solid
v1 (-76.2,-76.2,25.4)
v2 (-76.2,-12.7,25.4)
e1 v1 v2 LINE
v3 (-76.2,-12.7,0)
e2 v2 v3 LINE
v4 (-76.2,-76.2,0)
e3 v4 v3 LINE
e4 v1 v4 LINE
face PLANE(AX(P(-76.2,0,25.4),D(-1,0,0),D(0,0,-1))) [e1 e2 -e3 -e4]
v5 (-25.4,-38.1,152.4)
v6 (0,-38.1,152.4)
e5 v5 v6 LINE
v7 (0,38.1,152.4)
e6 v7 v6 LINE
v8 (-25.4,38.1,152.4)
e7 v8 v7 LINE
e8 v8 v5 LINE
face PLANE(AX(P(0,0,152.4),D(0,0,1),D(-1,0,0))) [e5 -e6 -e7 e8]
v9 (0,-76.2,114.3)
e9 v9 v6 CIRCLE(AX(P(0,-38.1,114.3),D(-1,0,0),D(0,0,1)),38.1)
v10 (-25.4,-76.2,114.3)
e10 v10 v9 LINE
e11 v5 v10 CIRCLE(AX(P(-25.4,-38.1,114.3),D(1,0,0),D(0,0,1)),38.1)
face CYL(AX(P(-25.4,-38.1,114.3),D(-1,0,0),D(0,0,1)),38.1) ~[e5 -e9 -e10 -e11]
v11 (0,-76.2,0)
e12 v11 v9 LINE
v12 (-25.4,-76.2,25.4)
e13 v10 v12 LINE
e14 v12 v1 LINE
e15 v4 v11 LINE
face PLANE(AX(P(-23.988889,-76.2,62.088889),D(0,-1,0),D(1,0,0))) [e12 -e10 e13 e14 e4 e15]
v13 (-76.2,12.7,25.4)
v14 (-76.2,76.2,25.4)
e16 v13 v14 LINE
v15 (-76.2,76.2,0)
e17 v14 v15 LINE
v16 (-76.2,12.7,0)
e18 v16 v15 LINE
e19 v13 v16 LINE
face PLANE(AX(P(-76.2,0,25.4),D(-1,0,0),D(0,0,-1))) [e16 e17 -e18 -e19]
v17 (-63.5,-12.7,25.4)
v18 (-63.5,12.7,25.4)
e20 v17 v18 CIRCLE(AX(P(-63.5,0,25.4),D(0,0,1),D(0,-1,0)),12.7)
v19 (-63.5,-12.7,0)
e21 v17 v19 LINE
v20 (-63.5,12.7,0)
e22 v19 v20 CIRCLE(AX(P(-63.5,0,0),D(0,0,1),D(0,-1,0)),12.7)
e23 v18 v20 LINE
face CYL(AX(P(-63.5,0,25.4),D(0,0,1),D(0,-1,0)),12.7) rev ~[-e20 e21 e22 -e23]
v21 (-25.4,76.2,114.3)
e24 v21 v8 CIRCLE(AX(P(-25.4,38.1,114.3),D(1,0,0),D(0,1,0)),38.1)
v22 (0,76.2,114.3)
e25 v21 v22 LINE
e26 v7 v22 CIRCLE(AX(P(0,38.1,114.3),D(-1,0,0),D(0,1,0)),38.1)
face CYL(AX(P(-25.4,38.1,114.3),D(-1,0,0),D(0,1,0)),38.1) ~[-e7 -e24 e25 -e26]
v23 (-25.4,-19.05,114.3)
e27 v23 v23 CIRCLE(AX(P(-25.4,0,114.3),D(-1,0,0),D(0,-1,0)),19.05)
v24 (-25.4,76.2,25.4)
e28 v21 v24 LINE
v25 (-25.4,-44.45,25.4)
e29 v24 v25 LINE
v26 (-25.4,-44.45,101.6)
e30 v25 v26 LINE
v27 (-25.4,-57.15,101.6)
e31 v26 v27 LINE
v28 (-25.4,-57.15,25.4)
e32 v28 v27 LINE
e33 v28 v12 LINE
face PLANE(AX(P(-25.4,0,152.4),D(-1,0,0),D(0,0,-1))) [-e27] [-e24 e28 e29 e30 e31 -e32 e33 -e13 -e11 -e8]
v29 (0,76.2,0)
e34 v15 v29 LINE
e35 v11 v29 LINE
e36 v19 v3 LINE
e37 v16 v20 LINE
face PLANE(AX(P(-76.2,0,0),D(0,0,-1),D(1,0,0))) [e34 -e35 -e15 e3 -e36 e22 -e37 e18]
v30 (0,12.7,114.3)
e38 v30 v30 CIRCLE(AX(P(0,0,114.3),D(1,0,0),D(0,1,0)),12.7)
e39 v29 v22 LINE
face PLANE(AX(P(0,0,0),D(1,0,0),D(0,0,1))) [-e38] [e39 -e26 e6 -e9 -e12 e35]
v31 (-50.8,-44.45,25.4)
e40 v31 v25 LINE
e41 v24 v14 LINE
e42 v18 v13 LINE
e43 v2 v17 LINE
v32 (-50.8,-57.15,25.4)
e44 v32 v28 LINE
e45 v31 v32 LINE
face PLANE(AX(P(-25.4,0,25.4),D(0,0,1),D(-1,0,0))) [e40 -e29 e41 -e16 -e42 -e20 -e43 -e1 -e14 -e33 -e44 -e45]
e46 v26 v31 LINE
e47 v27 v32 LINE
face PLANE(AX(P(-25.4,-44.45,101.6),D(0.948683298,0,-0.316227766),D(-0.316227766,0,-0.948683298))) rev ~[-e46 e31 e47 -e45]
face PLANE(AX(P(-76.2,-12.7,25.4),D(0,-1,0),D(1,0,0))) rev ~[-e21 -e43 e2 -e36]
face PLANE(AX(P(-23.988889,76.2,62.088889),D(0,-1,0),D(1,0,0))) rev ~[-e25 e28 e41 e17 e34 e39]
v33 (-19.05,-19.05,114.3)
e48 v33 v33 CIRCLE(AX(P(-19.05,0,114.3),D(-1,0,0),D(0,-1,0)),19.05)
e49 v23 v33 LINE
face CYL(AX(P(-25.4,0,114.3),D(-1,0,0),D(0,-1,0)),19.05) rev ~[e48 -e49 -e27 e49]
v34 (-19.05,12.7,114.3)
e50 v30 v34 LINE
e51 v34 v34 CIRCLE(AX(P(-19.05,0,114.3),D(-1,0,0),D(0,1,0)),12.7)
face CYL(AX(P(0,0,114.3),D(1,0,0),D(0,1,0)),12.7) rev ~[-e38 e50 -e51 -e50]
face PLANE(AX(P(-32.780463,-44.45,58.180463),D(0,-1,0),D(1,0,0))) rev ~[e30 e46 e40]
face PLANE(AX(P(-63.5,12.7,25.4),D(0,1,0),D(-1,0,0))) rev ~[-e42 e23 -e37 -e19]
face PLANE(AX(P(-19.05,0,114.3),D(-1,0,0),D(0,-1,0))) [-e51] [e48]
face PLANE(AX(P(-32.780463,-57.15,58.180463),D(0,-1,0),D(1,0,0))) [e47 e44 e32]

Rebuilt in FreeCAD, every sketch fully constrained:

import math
import FreeCAD as App
import Part
import Sketcher
Q = App.Units.Quantity

doc = App.newDocument("Part")
params = doc.addObject("Spreadsheet::Sheet", "Params")
for row, (alias, value) in enumerate([
    ("sketch1_width", "1 in"),
    ("sketch1_width2", "2 in"),
    ("sketch1_height", "6 in"),
    ("pad1_length", "6 in"),
    ("sketch2_diameter", "1 in"),
    ("sketch3_radius", "0.5 in"),
    ("sketch3_width", "0.5 in"),
    ("sketch4_radius", "1.5 in"),
    ("sketch5_diameter", "1 in"),
    ("sketch5_diameter2", "1.5 in"),
    ("pocket4_length", "0.25 in"),
    ("sketch6_width", "1 in"),
    ("sketch6_height", "3 in"),
    ("pad2_length", "0.5 in"),
], start=1):
    params.set(f"A{row}", alias)
    params.set(f"B{row}", "=" + value)
    params.setAlias(f"B{row}", alias)

body = doc.addObject("PartDesign::Body", "Body")

# Sketch on XZ plane
sketch1 = body.newObject("Sketcher::SketchObject", "Sketch")
sketch1.AttachmentSupport = (doc.getObject("XZ_Plane"), [""])
sketch1.MapMode = "FlatFace"
sketch1.addGeometry([
    Part.LineSegment(App.Vector(0, 0, 0), App.Vector(0, 152.4, 0)),  # 0
    Part.LineSegment(App.Vector(0, 152.4, 0), App.Vector(-25.4, 152.4, 0)),  # 1
    Part.LineSegment(App.Vector(-25.4, 152.4, 0), App.Vector(-25.4, 25.4, 0)),  # 2
    Part.LineSegment(App.Vector(-25.4, 25.4, 0), App.Vector(-76.2, 25.4, 0)),  # 3
    Part.LineSegment(App.Vector(-76.2, 25.4, 0), App.Vector(-76.2, 0, 0)),  # 4
    Part.LineSegment(App.Vector(-76.2, 0, 0), App.Vector(0, 0, 0)),  # 5
], False)
sketch1.addConstraint([
    Sketcher.Constraint("Coincident", 0, 2, 1, 1),
    Sketcher.Constraint("Coincident", 1, 2, 2, 1),
    Sketcher.Constraint("Coincident", 2, 2, 3, 1),
    Sketcher.Constraint("Coincident", 3, 2, 4, 1),
    Sketcher.Constraint("Coincident", 4, 2, 5, 1),
    Sketcher.Constraint("Coincident", 5, 2, 0, 1),
    Sketcher.Constraint("Vertical", 0),
    Sketcher.Constraint("Horizontal", 1),
    Sketcher.Constraint("Vertical", 2),
    Sketcher.Constraint("Horizontal", 3),
    Sketcher.Constraint("Vertical", 4),
    Sketcher.Constraint("Horizontal", 5),
    Sketcher.Constraint("Coincident", 5, 2, -1, 1),
    Sketcher.Constraint("Equal", 1, 4),
    Sketcher.Constraint("DistanceX", 1, 2, 1, 1, Q("1 in")),
    Sketcher.Constraint("DistanceX", 3, 2, 3, 1, Q("2 in")),
    Sketcher.Constraint("DistanceY", 0, 1, 0, 2, Q("6 in")),
])
sketch1.setExpression("Constraints[14]", "Params.sketch1_width")
sketch1.setExpression("Constraints[15]", "Params.sketch1_width2")
sketch1.setExpression("Constraints[16]", "Params.sketch1_height")
pad1 = body.newObject("PartDesign::Pad", "Pad")
pad1.Profile = sketch1
pad1.setExpression("Length", "Params.pad1_length")
pad1.Midplane = True

# Sketch on YZ plane
sketch2 = body.newObject("Sketcher::SketchObject", "Sketch001")
sketch2.AttachmentSupport = (doc.getObject("YZ_Plane"), [""])
sketch2.MapMode = "FlatFace"
sketch2.addGeometry(Part.Circle(App.Vector(0, 114.3, 0), App.Vector(0, 0, 1), 12.7), False)
sketch2.addConstraint([
    Sketcher.Constraint("PointOnObject", 0, 3, -2),
    Sketcher.Constraint("Diameter", 0, Q("1 in")),
    Sketcher.Constraint("DistanceY", -1, 1, 0, 3, Q("4.5 in")),
])
sketch2.setExpression("Constraints[1]", "Params.sketch2_diameter")
pocket1 = body.newObject("PartDesign::Pocket", "Pocket")
pocket1.Profile = sketch2
pocket1.Type = "ThroughAll"

# Sketch on XY plane
sketch3 = body.newObject("Sketcher::SketchObject", "Sketch002")
sketch3.AttachmentSupport = (doc.getObject("XY_Plane"), [""])
sketch3.MapMode = "FlatFace"
sketch3.AttachmentOffset = App.Placement(App.Vector(0, 0, 1 * 25.4), App.Rotation())
sketch3.addGeometry([
    Part.LineSegment(App.Vector(-76.2, 12.7, 0), App.Vector(-76.2, -12.7, 0)),
    Part.LineSegment(App.Vector(-76.2, -12.7, 0), App.Vector(-63.5, -12.7, 0)),
    Part.ArcOfCircle(Part.Circle(App.Vector(-63.5, 0, 0), App.Vector(0, 0, 1), 12.7), math.radians(-90), math.radians(90)),
    Part.LineSegment(App.Vector(-63.5, 12.7, 0), App.Vector(-76.2, 12.7, 0)),
], False)
sketch3.addConstraint([
    Sketcher.Constraint("Coincident", 0, 2, 1, 1),
    Sketcher.Constraint("Tangent", 1, 2, 2, 1),
    Sketcher.Constraint("Tangent", 2, 2, 3, 1),
    Sketcher.Constraint("Coincident", 3, 2, 0, 1),
    Sketcher.Constraint("Vertical", 0),
    Sketcher.Constraint("Horizontal", 1),
    Sketcher.Constraint("Horizontal", 3),
    Sketcher.Constraint("PointOnObject", 2, 3, -1),
    Sketcher.Constraint("Radius", 2, Q("0.5 in")),
    Sketcher.Constraint("DistanceX", 1, 1, 1, 2, Q("0.5 in")),
    Sketcher.Constraint("DistanceX", 0, 2, -1, 1, Q("3 in")),
])
sketch3.setExpression("Constraints[8]", "Params.sketch3_radius")
sketch3.setExpression("Constraints[9]", "Params.sketch3_width")
pocket2 = body.newObject("PartDesign::Pocket", "Pocket001")
pocket2.Profile = sketch3
pocket2.Type = "ThroughAll"

# Sketch on YZ plane
sketch4 = body.newObject("Sketcher::SketchObject", "Sketch003")
sketch4.AttachmentSupport = (doc.getObject("YZ_Plane"), [""])
sketch4.MapMode = "FlatFace"
sketch4.AttachmentOffset = App.Placement(App.Vector(0, 0, -1 * 25.4), App.Rotation())
sketch4.addGeometry([
    Part.LineSegment(App.Vector(76.2, 152.4, 0), App.Vector(76.2, 114.3, 0)),  # 0
    Part.ArcOfCircle(Part.Circle(App.Vector(38.1, 114.3, 0), App.Vector(0, 0, 1), 38.1), math.radians(0), math.radians(90)),  # 1
    Part.LineSegment(App.Vector(38.1, 152.4, 0), App.Vector(76.2, 152.4, 0)),  # 2
    Part.ArcOfCircle(Part.Circle(App.Vector(-38.1, 114.3, 0), App.Vector(0, 0, 1), 38.1), math.radians(90), math.radians(180)),  # 3
    Part.LineSegment(App.Vector(-76.2, 114.3, 0), App.Vector(-76.2, 152.4, 0)),  # 4
    Part.LineSegment(App.Vector(-76.2, 152.4, 0), App.Vector(-38.1, 152.4, 0)),  # 5
], False)
sketch4.addConstraint([
    Sketcher.Constraint("Tangent", 0, 2, 1, 1),
    Sketcher.Constraint("Tangent", 1, 2, 2, 1),
    Sketcher.Constraint("Coincident", 2, 2, 0, 1),
    Sketcher.Constraint("Tangent", 3, 2, 4, 1),
    Sketcher.Constraint("Coincident", 4, 2, 5, 1),
    Sketcher.Constraint("Tangent", 5, 2, 3, 1),
    Sketcher.Constraint("Vertical", 0),
    Sketcher.Constraint("Horizontal", 2),
    Sketcher.Constraint("Vertical", 4),
    Sketcher.Constraint("Horizontal", 5),
    Sketcher.Constraint("Equal", 1, 3),
    Sketcher.Constraint("Symmetric", 1, 3, 3, 3, -2),
    Sketcher.Constraint("Radius", 1, Q("1.5 in")),
    Sketcher.Constraint("DistanceX", -1, 1, 0, 2, Q("3 in")),
    Sketcher.Constraint("DistanceY", -1, 1, 1, 2, Q("6 in")),
])
sketch4.setExpression("Constraints[12]", "Params.sketch4_radius")
pocket3 = body.newObject("PartDesign::Pocket", "Pocket002")
pocket3.Profile = sketch4
pocket3.Type = "ThroughAll"
pocket3.Reversed = True

# Sketch on YZ plane
sketch5 = body.newObject("Sketcher::SketchObject", "Sketch004")
sketch5.AttachmentSupport = (doc.getObject("YZ_Plane"), [""])
sketch5.MapMode = "FlatFace"
sketch5.AttachmentOffset = App.Placement(App.Vector(0, 0, -1 * 25.4), App.Rotation())
sketch5.addGeometry([
    Part.Circle(App.Vector(0, 114.3, 0), App.Vector(0, 0, 1), 19.05),
    Part.Circle(App.Vector(0, 114.3, 0), App.Vector(0, 0, 1), 12.7),
], False)
sketch5.addConstraint([
    Sketcher.Constraint("Coincident", 1, 3, 0, 3),
    Sketcher.Constraint("PointOnObject", 0, 3, -2),
    Sketcher.Constraint("Diameter", 1, Q("1 in")),
    Sketcher.Constraint("Diameter", 0, Q("1.5 in")),
    Sketcher.Constraint("DistanceY", -1, 1, 0, 3, Q("4.5 in")),
])
sketch5.setExpression("Constraints[2]", "Params.sketch5_diameter")
sketch5.setExpression("Constraints[3]", "Params.sketch5_diameter2")
pocket4 = body.newObject("PartDesign::Pocket", "Pocket003")
pocket4.Profile = sketch5
pocket4.setExpression("Length", "Params.pocket4_length")
pocket4.Reversed = True

# Sketch on XZ plane
sketch6 = body.newObject("Sketcher::SketchObject", "Sketch005")
sketch6.AttachmentSupport = (doc.getObject("XZ_Plane"), [""])
sketch6.MapMode = "FlatFace"
sketch6.AttachmentOffset = App.Placement(App.Vector(0, 0, 1.75 * 25.4), App.Rotation())
sketch6.addGeometry([
    Part.LineSegment(App.Vector(-25.4, 101.6, 0), App.Vector(-50.8, 25.4, 0)),
    Part.LineSegment(App.Vector(-50.8, 25.4, 0), App.Vector(-25.4, 25.4, 0)),
    Part.LineSegment(App.Vector(-25.4, 25.4, 0), App.Vector(-25.4, 101.6, 0)),
], False)
sketch6.addConstraint([
    Sketcher.Constraint("Coincident", 0, 2, 1, 1),
    Sketcher.Constraint("Coincident", 1, 2, 2, 1),
    Sketcher.Constraint("Coincident", 2, 2, 0, 1),
    Sketcher.Constraint("Horizontal", 1),
    Sketcher.Constraint("Vertical", 2),
    Sketcher.Constraint("DistanceX", 1, 1, 1, 2, Q("1 in")),
    Sketcher.Constraint("DistanceY", 2, 1, 2, 2, Q("3 in")),
    Sketcher.Constraint("DistanceX", 0, 2, -1, 1, Q("2 in")),
    Sketcher.Constraint("DistanceY", -1, 1, 0, 2, Q("1 in")),
])
sketch6.setExpression("Constraints[5]", "Params.sketch6_width")
sketch6.setExpression("Constraints[6]", "Params.sketch6_height")
pad2 = body.newObject("PartDesign::Pad", "Pad001")
pad2.Profile = sketch6
pad2.setExpression("Length", "Params.pad2_length")

doc.recompute()
